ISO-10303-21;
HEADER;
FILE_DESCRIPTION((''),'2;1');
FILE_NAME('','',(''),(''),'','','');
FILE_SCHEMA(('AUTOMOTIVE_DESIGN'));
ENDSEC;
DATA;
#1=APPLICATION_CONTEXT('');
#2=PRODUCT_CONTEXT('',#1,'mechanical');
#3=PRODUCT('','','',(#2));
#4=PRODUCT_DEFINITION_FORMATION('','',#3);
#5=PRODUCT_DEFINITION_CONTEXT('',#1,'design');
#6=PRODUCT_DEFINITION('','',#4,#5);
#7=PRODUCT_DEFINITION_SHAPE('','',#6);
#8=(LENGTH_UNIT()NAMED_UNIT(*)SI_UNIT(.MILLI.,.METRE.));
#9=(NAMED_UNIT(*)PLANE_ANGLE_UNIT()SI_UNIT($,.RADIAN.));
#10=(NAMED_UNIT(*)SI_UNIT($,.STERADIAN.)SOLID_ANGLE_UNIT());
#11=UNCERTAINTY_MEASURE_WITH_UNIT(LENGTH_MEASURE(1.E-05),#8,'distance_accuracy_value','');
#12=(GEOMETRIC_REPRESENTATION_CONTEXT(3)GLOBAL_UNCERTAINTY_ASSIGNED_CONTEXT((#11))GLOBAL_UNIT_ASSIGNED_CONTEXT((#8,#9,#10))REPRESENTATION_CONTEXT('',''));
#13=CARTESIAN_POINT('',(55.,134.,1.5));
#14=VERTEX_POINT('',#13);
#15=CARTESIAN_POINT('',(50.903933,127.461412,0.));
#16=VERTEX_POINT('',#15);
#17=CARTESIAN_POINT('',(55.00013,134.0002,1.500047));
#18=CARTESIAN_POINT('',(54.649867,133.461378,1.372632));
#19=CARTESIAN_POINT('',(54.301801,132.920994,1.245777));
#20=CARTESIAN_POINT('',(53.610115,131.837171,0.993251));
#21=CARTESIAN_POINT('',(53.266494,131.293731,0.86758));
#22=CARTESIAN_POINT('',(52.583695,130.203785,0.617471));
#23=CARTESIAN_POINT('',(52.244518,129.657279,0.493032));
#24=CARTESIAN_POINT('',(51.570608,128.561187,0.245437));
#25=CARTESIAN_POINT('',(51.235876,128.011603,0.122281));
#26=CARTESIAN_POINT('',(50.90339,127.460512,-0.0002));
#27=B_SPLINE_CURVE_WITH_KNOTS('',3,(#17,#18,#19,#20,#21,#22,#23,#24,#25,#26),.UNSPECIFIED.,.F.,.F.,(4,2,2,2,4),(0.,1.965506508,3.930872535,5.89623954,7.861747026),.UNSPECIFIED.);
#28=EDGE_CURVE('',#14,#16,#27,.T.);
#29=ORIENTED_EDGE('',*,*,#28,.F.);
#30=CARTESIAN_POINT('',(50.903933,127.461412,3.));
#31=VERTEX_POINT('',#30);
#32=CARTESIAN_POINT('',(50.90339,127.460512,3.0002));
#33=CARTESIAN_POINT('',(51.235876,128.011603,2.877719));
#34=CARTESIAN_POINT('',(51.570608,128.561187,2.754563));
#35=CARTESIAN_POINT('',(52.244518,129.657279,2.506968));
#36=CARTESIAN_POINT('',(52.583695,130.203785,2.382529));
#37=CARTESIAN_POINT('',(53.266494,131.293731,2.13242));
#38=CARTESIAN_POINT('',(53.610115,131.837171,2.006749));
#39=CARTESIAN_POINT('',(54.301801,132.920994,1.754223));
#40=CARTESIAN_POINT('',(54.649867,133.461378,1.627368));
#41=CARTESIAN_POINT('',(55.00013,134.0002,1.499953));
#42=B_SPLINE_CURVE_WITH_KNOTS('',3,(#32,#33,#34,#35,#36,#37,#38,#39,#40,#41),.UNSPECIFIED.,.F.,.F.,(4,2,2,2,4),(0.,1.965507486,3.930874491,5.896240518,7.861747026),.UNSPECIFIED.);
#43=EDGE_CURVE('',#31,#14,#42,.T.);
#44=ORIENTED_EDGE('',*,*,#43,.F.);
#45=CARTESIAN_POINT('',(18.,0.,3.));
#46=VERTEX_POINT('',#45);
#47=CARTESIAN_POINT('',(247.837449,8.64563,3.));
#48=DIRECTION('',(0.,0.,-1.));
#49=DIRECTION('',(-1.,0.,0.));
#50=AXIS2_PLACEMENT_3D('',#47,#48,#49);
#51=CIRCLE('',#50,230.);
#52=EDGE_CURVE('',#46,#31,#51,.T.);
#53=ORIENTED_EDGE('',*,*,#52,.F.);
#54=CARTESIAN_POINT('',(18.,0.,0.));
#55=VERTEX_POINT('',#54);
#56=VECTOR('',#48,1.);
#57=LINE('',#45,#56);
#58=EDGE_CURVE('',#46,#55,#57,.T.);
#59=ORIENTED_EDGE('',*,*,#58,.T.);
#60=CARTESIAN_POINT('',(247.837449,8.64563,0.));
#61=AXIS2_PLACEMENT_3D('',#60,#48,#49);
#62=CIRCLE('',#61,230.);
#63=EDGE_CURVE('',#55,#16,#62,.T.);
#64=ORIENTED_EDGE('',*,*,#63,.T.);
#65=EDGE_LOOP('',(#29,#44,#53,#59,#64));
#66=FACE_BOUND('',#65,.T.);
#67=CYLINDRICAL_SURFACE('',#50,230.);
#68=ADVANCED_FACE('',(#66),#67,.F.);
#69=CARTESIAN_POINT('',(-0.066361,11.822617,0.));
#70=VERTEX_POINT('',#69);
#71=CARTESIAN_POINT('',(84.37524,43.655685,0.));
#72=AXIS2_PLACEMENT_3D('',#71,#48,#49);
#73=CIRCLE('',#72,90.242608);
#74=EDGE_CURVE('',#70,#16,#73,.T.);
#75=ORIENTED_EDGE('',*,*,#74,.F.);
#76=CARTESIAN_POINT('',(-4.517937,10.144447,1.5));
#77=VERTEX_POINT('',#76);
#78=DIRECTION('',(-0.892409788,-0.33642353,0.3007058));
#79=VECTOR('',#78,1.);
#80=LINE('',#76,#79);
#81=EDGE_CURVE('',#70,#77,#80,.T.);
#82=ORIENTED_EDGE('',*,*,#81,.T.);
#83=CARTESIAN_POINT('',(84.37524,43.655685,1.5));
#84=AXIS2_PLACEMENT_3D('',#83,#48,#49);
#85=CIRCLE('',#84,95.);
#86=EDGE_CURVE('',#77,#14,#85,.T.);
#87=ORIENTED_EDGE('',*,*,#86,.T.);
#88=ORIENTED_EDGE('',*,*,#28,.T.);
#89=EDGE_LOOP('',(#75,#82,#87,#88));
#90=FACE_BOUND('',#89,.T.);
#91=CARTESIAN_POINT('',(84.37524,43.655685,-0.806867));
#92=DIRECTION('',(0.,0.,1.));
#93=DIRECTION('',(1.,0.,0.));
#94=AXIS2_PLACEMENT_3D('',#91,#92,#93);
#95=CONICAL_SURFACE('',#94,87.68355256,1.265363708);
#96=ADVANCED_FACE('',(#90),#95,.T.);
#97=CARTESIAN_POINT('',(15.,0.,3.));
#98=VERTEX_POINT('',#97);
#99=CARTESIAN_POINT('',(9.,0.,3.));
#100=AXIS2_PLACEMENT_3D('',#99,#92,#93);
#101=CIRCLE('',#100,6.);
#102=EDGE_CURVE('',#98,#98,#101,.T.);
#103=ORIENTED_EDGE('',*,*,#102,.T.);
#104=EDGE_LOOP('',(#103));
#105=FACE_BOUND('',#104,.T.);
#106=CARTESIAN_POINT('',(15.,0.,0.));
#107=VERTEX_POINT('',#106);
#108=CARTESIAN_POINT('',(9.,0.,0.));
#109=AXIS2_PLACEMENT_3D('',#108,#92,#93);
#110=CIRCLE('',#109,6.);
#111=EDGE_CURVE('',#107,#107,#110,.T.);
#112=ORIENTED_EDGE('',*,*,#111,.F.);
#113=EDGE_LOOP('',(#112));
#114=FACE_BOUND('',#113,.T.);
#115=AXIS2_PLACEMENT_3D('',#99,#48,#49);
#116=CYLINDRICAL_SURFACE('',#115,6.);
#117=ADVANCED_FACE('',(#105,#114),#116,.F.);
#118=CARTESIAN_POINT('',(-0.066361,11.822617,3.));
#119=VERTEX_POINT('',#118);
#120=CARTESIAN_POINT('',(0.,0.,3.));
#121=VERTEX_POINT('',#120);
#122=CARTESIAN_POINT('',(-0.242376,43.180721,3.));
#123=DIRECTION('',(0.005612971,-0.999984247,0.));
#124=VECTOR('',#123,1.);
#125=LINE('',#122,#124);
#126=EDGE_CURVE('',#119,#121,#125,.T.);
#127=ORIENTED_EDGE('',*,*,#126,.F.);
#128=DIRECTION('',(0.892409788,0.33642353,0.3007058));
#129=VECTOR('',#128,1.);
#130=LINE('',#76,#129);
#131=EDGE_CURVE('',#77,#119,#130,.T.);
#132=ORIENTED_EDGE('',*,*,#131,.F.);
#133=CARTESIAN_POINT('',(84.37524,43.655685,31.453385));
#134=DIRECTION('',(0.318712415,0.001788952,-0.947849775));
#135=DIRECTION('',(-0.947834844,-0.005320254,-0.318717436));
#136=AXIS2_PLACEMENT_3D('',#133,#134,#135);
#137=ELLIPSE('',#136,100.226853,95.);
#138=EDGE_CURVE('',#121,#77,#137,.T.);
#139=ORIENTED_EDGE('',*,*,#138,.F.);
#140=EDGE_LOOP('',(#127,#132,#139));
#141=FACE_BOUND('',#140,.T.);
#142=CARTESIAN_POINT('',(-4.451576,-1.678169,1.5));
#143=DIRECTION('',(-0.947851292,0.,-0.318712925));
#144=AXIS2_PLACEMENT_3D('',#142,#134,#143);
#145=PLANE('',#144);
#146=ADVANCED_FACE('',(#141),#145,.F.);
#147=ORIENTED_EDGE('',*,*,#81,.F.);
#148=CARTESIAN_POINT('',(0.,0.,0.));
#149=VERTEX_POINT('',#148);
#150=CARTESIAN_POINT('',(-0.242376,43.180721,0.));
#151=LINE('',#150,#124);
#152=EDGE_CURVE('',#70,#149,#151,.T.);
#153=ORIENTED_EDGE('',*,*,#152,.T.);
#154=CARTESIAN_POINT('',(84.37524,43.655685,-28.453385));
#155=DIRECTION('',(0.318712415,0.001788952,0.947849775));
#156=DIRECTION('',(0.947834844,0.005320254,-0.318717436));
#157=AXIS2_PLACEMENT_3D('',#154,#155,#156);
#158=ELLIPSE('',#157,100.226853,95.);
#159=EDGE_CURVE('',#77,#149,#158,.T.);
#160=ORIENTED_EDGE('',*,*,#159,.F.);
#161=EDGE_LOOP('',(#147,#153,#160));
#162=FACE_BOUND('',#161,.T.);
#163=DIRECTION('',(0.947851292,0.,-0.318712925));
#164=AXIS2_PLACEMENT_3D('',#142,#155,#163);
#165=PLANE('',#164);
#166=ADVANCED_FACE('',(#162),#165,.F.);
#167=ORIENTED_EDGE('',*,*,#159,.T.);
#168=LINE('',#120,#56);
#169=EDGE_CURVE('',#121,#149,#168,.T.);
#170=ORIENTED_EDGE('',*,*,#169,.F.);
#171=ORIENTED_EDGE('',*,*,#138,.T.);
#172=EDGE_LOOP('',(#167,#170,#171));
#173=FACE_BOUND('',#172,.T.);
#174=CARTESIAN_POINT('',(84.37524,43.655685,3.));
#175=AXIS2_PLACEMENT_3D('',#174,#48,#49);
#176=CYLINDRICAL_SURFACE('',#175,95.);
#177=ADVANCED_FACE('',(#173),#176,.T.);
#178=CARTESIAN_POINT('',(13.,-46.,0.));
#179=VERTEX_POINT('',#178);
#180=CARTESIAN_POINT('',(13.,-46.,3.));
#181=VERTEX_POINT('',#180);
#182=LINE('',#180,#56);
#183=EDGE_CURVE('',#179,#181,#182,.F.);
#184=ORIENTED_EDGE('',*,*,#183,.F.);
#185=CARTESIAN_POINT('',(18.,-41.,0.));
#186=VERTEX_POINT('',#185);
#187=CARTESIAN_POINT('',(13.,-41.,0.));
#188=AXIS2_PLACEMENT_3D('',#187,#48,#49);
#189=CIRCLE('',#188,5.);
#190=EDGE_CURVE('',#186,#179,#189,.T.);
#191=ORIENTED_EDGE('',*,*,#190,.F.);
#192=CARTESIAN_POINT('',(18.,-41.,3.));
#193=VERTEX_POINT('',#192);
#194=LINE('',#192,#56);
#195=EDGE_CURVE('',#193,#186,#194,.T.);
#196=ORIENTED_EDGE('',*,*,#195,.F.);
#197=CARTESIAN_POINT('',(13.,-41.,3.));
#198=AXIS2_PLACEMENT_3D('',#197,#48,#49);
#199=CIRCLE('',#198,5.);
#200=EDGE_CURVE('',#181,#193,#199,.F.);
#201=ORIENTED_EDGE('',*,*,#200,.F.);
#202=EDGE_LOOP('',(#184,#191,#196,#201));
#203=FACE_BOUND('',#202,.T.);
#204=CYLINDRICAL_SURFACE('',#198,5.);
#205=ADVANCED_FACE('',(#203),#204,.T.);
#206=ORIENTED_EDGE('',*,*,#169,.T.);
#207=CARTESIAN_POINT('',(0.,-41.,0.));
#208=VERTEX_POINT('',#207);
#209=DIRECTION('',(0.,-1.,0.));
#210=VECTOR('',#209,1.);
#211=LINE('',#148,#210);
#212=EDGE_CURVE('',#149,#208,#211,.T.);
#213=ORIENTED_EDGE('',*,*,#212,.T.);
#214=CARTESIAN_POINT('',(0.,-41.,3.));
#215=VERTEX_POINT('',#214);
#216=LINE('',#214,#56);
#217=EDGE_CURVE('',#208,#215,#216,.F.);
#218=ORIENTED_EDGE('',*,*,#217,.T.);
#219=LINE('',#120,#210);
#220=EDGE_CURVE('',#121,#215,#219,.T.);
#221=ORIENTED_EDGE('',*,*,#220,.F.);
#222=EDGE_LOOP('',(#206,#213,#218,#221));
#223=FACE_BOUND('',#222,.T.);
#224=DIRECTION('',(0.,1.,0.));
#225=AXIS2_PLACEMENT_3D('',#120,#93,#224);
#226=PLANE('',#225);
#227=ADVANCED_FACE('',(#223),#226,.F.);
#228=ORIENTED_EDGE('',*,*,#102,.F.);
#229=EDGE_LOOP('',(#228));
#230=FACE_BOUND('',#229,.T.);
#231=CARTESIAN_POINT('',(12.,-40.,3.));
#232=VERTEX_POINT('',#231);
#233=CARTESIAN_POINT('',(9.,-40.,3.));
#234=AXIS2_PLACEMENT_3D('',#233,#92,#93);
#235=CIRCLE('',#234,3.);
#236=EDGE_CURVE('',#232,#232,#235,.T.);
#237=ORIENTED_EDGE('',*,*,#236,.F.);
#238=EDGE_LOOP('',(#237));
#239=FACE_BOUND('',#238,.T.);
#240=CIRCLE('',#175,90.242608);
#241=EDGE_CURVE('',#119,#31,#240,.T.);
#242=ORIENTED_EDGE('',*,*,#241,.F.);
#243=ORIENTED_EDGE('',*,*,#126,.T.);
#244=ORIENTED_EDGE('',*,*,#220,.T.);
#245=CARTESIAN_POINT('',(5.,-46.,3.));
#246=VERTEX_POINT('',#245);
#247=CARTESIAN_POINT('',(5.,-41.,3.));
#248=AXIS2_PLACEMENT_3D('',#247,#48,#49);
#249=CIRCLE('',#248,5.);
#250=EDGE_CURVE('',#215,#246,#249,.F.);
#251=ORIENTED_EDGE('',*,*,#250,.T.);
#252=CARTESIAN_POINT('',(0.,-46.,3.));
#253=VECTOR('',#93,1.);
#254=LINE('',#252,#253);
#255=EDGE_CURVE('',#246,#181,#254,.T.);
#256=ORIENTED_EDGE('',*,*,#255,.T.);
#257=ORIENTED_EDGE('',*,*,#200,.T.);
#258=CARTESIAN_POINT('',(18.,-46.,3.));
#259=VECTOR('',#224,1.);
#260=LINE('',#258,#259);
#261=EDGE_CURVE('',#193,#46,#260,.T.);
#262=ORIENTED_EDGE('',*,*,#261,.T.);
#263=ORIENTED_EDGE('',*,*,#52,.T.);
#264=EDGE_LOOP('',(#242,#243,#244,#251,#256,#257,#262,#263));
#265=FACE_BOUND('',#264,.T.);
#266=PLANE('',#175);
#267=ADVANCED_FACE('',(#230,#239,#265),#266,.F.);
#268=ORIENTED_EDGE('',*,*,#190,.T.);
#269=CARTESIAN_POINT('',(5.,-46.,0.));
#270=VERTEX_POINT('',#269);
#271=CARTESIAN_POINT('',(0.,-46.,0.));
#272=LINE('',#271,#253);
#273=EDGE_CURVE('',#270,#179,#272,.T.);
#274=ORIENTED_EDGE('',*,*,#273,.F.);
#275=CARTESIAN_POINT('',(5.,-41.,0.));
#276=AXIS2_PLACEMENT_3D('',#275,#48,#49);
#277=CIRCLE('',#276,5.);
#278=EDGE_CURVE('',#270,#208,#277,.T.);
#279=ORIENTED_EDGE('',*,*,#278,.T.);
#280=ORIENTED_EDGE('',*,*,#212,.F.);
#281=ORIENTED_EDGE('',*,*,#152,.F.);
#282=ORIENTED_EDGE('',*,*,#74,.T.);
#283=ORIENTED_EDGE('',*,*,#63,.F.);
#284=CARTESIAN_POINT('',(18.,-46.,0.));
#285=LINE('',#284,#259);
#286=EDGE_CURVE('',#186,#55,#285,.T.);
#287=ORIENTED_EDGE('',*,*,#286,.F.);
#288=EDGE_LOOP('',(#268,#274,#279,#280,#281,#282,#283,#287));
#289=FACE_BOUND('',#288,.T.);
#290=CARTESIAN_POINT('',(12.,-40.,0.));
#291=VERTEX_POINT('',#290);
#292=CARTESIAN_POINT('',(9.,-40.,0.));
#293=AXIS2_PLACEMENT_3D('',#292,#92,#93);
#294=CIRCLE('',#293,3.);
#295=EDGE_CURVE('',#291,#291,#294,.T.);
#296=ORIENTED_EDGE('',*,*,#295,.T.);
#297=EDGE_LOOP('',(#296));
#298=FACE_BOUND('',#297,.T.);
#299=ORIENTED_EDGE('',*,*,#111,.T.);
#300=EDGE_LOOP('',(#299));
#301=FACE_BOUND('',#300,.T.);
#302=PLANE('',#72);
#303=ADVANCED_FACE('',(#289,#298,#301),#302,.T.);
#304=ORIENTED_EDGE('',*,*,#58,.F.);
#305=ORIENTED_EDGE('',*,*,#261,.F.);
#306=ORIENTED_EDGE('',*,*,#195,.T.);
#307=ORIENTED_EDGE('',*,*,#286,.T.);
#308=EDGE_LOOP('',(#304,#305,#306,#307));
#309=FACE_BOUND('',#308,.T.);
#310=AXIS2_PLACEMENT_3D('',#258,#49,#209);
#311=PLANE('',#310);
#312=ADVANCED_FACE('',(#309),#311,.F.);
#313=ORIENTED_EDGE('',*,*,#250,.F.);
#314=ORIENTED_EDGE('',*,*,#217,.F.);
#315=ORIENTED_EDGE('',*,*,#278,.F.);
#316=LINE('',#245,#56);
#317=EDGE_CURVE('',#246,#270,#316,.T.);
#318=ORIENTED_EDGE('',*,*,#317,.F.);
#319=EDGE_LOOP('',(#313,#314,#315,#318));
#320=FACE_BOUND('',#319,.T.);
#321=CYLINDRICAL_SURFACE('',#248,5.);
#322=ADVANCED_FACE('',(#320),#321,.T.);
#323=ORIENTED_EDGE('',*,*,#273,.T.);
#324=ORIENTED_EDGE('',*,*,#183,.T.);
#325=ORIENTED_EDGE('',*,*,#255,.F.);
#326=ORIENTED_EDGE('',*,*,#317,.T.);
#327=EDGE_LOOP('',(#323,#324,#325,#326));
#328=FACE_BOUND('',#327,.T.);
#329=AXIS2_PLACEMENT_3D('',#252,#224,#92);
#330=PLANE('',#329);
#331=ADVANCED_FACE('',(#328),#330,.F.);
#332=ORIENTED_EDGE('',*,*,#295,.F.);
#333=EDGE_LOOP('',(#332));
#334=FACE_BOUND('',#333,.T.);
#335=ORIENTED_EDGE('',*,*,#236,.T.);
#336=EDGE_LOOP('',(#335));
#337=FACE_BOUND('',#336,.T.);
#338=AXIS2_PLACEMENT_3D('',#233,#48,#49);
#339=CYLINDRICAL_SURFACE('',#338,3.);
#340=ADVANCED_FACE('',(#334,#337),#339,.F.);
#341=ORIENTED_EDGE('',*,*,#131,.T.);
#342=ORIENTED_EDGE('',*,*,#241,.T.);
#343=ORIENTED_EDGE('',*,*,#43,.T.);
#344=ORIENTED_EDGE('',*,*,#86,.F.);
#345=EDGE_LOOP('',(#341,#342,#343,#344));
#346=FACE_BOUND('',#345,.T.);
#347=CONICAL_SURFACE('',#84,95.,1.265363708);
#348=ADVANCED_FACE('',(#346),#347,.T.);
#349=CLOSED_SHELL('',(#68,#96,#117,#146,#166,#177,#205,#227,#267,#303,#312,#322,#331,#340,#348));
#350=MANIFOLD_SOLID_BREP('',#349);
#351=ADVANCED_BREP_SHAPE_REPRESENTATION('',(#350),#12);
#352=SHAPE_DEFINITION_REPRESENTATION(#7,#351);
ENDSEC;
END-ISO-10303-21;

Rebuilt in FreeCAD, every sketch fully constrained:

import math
import FreeCAD as App
import Part
import Sketcher
from FreeCAD import Vector
Q = App.Units.Quantity


def edges_at(feature, points):
    """Names of the edges that pass closest to the given points."""
    edges = feature.Shape.Edges
    near = lambda p: min(range(len(edges)), key=lambda i: edges[i].distToShape(Part.Vertex(*p))[0])
    return sorted({f"Edge{near(p) + 1}" for p in points})


def add_polygon(sketch, points):
    """Adds a closed chain of lines whose ends are joined by coincident constraints."""
    first, n = sketch.GeometryCount, len(points)
    for a, b in zip(points, points[1:] + points[:1]):
        sketch.addGeometry(Part.LineSegment(App.Vector(*a, 0), App.Vector(*b, 0)), False)
    for i in range(n):
        sketch.addConstraint(Sketcher.Constraint("Coincident", first + i, 2, first + (i + 1) % n, 1))

doc = App.newDocument("Part")
body = doc.addObject("PartDesign::Body", "Body")

sketch1 = body.newObject("Sketcher::SketchObject", "Sketch")
sketch1.AttachmentSupport = (doc.getObject("XY_Plane"), [""])
sketch1.MapMode = "FlatFace"
sketch1.addGeometry([
    Part.LineSegment(Vector(0, 0, 0), Vector(0, -46, 0)),
    Part.LineSegment(Vector(0, -46, 0), Vector(18, -46, 0)),
    Part.LineSegment(Vector(18, -46, 0), Vector(18, 0, 0)),
    Part.ArcOfCircle(Part.Circle(Vector(247.8, 8.6, 0), Vector(0, 0, 1), 230), math.radians(147), math.radians(182)),
    Part.ArcOfCircle(Part.Circle(Vector(84.4, 43.7, 0), Vector(0, 0, 1), 95), math.radians(108), math.radians(207)),
    Part.Circle(Vector(9, -40, 0), Vector(0, 0, 1), 3),
    Part.Circle(Vector(9, 0, 0), Vector(0, 0, 1), 6),
], False)
sketch1.addConstraint([
    Sketcher.Constraint("Coincident", 0, 2, 1, 1),
    Sketcher.Constraint("Coincident", 1, 2, 2, 1),
    Sketcher.Constraint("Coincident", 2, 2, 3, 2),
    Sketcher.Constraint("Coincident", 3, 1, 4, 1),
    Sketcher.Constraint("Coincident", 4, 2, 0, 1),
    Sketcher.Constraint("Vertical", 0),
    Sketcher.Constraint("Horizontal", 1),
    Sketcher.Constraint("Vertical", 2),
    Sketcher.Constraint("Coincident", 4, 2, -1, 1),
    Sketcher.Constraint("PointOnObject", 6, 3, -1),
    Sketcher.Constraint("PointOnObject", 2, 2, -1),
    Sketcher.Constraint("Vertical", 5, 3, 6, 3),
    Sketcher.Constraint("Diameter", 5, Q("6 mm")),
    Sketcher.Constraint("Diameter", 6, Q("12 mm")),
    Sketcher.Constraint("Radius", 3, Q("230 mm")),
    Sketcher.Constraint("Radius", 4, Q("95 mm")),
    Sketcher.Constraint("DistanceX", 1, 1, 1, 2, Q("18 mm")),
    Sketcher.Constraint("DistanceY", 0, 2, 0, 1, Q("46 mm")),
    Sketcher.Constraint("DistanceX", -1, 1, 5, 3, Q("9 mm")),
    Sketcher.Constraint("DistanceY", 5, 3, -1, 1, Q("40 mm")),
    Sketcher.Constraint("DistanceX", -1, 1, 3, 1, Q("55 mm")),
    Sketcher.Constraint("DistanceY", -1, 1, 3, 1, Q("134 mm")),
])
pad1 = body.newObject("PartDesign::Pad", "Pad")
pad1.Profile = sketch1
pad1.Length = 3
doc.recompute()

fillet = body.newObject("PartDesign::Fillet", "Fillet")
fillet.Base = (pad1, edges_at(pad1, [(18, -46, 1.5), (0, -46, 1.5)]))
fillet.Radius = 5

sketch2 = body.newObject("Sketcher::SketchObject", "Sketch001")
sketch2.Placement = App.Placement(Vector(89.145259, 28.98537, 0), App.Rotation(Vector(0, 0, 1), Vector(-0.309213055, 0.95099279, 0), Vector(-0.95099279, -0.309213055, 0), "ZXY"))
add_polygon(sketch2, [(-0.8, 103.1), (1.5, 110.4), (3.8, 103.1), (3.8, 111.7), (-0.8, 111.7)])
sketch2.addConstraint([
    Sketcher.Constraint("Vertical", 2),
    Sketcher.Constraint("Horizontal", 3),
    Sketcher.Constraint("Vertical", 4),
    Sketcher.Constraint("Horizontal", 1, 2, 4, 2),
    Sketcher.Constraint("Equal", 0, 1),
    Sketcher.Constraint("Angle", 0, Q("72.5 deg")),
    Sketcher.Constraint("DistanceX", -1, 1, 0, 2, Q("1.5 mm")),
    Sketcher.Constraint("Distance", 0, Q("7.671508 mm")),
    Sketcher.Constraint("DistanceY", 2, 1, 2, 2, Q("8.563854 mm")),
    Sketcher.Constraint("DistanceY", -1, 1, 1, 2, Q("103.109868 mm")),
])

sketch3 = body.newObject("Sketcher::SketchObject", "Sketch002")
sketch3.AttachmentSupport = (doc.getObject("XY_Plane"), [""])
sketch3.MapMode = "FlatFace"
sketch3.AttachmentOffset = App.Placement(Vector(0, 0, 1.5), App.Rotation())
sketch3.addGeometry(Part.ArcOfCircle(Part.Circle(Vector(84, 44, 0), Vector(0, 0, 1), 95), math.radians(108), math.radians(201)), False)
sketch3.addConstraint([
    Sketcher.Constraint("Radius", 0, Q("95 mm")),
    Sketcher.Constraint("DistanceX", -1, 1, 0, 1, Q("55 mm")),
    Sketcher.Constraint("DistanceY", -1, 1, 0, 1, Q("134 mm")),
    Sketcher.Constraint("DistanceX", -1, 1, 0, 3, Q("84.37524 mm")),
    Sketcher.Constraint("DistanceX", 0, 2, -1, 1, Q("4.517937 mm")),
])
doc.recompute()

subtractivepipe = body.newObject("PartDesign::SubtractivePipe", "SubtractivePipe")
subtractivepipe.Profile = sketch2
subtractivepipe.Spine = (sketch3, ["Edge1"])

sketch4 = body.newObject("Sketcher::SketchObject", "Sketch003")
sketch4.Placement = App.Placement(Vector(-3.910599, 10.373403, 0), App.Rotation(Vector(0.935717655, 0.35274987, 0), Vector(0, 0, -1.000000001), Vector(-0.35274987, 0.935717655, 0), "ZXY"))
add_polygon(sketch4, [(-2.1, 0.8), (-2.1, -3.6), (6.1, -3.6), (-0.6, -1.5), (6.6, 0.8)])
sketch4.addConstraint([
    Sketcher.Constraint("Vertical", 0),
    Sketcher.Constraint("Horizontal", 1),
    Sketcher.Constraint("Horizontal", 4),
    Sketcher.Constraint("Angle", 2, Q("162.5 deg")),
    Sketcher.Constraint("Angle", 3, Q("17.5 deg")),
    Sketcher.Constraint("DistanceY", 2, 2, -1, 1, Q("1.5 mm")),
    Sketcher.Constraint("Distance", 2, Q("7.053599 mm")),
    Sketcher.Constraint("DistanceX", 1, 1, 1, 2, Q("8.199881 mm")),
    Sketcher.Constraint("DistanceY", 0, 2, 0, 1, Q("4.408668 mm")),
    Sketcher.Constraint("DistanceX", 2, 2, -1, 1, Q("0.649061 mm")),
])

sketch5 = body.newObject("Sketcher::SketchObject", "Sketch004")
sketch5.Placement = App.Placement(Vector(0, 0, 0), App.Rotation(Vector(0.005612971, -0.999984247, 0), Vector(0, 0, 1), Vector(-0.999984247, -0.005612971, 0), "ZXY"))
sketch5.addGeometry(Part.LineSegment(Vector(-12, 1, 0), Vector(0, 1, 0)), False)
sketch5.addConstraint([
    Sketcher.Constraint("Horizontal", 0),
    Sketcher.Constraint("PointOnObject", 0, 2, -2),
    Sketcher.Constraint("DistanceY", -1, 1, 0, 1, Q("1.5 mm")),
    Sketcher.Constraint("DistanceX", 0, 1, 0, 2, Q("11.822803 mm")),
])
doc.recompute()

subtractivepipe2 = body.newObject("PartDesign::SubtractivePipe", "SubtractivePipe001")
subtractivepipe2.Profile = sketch4
subtractivepipe2.Spine = (sketch5, ["Edge1"])

doc.recompute()
